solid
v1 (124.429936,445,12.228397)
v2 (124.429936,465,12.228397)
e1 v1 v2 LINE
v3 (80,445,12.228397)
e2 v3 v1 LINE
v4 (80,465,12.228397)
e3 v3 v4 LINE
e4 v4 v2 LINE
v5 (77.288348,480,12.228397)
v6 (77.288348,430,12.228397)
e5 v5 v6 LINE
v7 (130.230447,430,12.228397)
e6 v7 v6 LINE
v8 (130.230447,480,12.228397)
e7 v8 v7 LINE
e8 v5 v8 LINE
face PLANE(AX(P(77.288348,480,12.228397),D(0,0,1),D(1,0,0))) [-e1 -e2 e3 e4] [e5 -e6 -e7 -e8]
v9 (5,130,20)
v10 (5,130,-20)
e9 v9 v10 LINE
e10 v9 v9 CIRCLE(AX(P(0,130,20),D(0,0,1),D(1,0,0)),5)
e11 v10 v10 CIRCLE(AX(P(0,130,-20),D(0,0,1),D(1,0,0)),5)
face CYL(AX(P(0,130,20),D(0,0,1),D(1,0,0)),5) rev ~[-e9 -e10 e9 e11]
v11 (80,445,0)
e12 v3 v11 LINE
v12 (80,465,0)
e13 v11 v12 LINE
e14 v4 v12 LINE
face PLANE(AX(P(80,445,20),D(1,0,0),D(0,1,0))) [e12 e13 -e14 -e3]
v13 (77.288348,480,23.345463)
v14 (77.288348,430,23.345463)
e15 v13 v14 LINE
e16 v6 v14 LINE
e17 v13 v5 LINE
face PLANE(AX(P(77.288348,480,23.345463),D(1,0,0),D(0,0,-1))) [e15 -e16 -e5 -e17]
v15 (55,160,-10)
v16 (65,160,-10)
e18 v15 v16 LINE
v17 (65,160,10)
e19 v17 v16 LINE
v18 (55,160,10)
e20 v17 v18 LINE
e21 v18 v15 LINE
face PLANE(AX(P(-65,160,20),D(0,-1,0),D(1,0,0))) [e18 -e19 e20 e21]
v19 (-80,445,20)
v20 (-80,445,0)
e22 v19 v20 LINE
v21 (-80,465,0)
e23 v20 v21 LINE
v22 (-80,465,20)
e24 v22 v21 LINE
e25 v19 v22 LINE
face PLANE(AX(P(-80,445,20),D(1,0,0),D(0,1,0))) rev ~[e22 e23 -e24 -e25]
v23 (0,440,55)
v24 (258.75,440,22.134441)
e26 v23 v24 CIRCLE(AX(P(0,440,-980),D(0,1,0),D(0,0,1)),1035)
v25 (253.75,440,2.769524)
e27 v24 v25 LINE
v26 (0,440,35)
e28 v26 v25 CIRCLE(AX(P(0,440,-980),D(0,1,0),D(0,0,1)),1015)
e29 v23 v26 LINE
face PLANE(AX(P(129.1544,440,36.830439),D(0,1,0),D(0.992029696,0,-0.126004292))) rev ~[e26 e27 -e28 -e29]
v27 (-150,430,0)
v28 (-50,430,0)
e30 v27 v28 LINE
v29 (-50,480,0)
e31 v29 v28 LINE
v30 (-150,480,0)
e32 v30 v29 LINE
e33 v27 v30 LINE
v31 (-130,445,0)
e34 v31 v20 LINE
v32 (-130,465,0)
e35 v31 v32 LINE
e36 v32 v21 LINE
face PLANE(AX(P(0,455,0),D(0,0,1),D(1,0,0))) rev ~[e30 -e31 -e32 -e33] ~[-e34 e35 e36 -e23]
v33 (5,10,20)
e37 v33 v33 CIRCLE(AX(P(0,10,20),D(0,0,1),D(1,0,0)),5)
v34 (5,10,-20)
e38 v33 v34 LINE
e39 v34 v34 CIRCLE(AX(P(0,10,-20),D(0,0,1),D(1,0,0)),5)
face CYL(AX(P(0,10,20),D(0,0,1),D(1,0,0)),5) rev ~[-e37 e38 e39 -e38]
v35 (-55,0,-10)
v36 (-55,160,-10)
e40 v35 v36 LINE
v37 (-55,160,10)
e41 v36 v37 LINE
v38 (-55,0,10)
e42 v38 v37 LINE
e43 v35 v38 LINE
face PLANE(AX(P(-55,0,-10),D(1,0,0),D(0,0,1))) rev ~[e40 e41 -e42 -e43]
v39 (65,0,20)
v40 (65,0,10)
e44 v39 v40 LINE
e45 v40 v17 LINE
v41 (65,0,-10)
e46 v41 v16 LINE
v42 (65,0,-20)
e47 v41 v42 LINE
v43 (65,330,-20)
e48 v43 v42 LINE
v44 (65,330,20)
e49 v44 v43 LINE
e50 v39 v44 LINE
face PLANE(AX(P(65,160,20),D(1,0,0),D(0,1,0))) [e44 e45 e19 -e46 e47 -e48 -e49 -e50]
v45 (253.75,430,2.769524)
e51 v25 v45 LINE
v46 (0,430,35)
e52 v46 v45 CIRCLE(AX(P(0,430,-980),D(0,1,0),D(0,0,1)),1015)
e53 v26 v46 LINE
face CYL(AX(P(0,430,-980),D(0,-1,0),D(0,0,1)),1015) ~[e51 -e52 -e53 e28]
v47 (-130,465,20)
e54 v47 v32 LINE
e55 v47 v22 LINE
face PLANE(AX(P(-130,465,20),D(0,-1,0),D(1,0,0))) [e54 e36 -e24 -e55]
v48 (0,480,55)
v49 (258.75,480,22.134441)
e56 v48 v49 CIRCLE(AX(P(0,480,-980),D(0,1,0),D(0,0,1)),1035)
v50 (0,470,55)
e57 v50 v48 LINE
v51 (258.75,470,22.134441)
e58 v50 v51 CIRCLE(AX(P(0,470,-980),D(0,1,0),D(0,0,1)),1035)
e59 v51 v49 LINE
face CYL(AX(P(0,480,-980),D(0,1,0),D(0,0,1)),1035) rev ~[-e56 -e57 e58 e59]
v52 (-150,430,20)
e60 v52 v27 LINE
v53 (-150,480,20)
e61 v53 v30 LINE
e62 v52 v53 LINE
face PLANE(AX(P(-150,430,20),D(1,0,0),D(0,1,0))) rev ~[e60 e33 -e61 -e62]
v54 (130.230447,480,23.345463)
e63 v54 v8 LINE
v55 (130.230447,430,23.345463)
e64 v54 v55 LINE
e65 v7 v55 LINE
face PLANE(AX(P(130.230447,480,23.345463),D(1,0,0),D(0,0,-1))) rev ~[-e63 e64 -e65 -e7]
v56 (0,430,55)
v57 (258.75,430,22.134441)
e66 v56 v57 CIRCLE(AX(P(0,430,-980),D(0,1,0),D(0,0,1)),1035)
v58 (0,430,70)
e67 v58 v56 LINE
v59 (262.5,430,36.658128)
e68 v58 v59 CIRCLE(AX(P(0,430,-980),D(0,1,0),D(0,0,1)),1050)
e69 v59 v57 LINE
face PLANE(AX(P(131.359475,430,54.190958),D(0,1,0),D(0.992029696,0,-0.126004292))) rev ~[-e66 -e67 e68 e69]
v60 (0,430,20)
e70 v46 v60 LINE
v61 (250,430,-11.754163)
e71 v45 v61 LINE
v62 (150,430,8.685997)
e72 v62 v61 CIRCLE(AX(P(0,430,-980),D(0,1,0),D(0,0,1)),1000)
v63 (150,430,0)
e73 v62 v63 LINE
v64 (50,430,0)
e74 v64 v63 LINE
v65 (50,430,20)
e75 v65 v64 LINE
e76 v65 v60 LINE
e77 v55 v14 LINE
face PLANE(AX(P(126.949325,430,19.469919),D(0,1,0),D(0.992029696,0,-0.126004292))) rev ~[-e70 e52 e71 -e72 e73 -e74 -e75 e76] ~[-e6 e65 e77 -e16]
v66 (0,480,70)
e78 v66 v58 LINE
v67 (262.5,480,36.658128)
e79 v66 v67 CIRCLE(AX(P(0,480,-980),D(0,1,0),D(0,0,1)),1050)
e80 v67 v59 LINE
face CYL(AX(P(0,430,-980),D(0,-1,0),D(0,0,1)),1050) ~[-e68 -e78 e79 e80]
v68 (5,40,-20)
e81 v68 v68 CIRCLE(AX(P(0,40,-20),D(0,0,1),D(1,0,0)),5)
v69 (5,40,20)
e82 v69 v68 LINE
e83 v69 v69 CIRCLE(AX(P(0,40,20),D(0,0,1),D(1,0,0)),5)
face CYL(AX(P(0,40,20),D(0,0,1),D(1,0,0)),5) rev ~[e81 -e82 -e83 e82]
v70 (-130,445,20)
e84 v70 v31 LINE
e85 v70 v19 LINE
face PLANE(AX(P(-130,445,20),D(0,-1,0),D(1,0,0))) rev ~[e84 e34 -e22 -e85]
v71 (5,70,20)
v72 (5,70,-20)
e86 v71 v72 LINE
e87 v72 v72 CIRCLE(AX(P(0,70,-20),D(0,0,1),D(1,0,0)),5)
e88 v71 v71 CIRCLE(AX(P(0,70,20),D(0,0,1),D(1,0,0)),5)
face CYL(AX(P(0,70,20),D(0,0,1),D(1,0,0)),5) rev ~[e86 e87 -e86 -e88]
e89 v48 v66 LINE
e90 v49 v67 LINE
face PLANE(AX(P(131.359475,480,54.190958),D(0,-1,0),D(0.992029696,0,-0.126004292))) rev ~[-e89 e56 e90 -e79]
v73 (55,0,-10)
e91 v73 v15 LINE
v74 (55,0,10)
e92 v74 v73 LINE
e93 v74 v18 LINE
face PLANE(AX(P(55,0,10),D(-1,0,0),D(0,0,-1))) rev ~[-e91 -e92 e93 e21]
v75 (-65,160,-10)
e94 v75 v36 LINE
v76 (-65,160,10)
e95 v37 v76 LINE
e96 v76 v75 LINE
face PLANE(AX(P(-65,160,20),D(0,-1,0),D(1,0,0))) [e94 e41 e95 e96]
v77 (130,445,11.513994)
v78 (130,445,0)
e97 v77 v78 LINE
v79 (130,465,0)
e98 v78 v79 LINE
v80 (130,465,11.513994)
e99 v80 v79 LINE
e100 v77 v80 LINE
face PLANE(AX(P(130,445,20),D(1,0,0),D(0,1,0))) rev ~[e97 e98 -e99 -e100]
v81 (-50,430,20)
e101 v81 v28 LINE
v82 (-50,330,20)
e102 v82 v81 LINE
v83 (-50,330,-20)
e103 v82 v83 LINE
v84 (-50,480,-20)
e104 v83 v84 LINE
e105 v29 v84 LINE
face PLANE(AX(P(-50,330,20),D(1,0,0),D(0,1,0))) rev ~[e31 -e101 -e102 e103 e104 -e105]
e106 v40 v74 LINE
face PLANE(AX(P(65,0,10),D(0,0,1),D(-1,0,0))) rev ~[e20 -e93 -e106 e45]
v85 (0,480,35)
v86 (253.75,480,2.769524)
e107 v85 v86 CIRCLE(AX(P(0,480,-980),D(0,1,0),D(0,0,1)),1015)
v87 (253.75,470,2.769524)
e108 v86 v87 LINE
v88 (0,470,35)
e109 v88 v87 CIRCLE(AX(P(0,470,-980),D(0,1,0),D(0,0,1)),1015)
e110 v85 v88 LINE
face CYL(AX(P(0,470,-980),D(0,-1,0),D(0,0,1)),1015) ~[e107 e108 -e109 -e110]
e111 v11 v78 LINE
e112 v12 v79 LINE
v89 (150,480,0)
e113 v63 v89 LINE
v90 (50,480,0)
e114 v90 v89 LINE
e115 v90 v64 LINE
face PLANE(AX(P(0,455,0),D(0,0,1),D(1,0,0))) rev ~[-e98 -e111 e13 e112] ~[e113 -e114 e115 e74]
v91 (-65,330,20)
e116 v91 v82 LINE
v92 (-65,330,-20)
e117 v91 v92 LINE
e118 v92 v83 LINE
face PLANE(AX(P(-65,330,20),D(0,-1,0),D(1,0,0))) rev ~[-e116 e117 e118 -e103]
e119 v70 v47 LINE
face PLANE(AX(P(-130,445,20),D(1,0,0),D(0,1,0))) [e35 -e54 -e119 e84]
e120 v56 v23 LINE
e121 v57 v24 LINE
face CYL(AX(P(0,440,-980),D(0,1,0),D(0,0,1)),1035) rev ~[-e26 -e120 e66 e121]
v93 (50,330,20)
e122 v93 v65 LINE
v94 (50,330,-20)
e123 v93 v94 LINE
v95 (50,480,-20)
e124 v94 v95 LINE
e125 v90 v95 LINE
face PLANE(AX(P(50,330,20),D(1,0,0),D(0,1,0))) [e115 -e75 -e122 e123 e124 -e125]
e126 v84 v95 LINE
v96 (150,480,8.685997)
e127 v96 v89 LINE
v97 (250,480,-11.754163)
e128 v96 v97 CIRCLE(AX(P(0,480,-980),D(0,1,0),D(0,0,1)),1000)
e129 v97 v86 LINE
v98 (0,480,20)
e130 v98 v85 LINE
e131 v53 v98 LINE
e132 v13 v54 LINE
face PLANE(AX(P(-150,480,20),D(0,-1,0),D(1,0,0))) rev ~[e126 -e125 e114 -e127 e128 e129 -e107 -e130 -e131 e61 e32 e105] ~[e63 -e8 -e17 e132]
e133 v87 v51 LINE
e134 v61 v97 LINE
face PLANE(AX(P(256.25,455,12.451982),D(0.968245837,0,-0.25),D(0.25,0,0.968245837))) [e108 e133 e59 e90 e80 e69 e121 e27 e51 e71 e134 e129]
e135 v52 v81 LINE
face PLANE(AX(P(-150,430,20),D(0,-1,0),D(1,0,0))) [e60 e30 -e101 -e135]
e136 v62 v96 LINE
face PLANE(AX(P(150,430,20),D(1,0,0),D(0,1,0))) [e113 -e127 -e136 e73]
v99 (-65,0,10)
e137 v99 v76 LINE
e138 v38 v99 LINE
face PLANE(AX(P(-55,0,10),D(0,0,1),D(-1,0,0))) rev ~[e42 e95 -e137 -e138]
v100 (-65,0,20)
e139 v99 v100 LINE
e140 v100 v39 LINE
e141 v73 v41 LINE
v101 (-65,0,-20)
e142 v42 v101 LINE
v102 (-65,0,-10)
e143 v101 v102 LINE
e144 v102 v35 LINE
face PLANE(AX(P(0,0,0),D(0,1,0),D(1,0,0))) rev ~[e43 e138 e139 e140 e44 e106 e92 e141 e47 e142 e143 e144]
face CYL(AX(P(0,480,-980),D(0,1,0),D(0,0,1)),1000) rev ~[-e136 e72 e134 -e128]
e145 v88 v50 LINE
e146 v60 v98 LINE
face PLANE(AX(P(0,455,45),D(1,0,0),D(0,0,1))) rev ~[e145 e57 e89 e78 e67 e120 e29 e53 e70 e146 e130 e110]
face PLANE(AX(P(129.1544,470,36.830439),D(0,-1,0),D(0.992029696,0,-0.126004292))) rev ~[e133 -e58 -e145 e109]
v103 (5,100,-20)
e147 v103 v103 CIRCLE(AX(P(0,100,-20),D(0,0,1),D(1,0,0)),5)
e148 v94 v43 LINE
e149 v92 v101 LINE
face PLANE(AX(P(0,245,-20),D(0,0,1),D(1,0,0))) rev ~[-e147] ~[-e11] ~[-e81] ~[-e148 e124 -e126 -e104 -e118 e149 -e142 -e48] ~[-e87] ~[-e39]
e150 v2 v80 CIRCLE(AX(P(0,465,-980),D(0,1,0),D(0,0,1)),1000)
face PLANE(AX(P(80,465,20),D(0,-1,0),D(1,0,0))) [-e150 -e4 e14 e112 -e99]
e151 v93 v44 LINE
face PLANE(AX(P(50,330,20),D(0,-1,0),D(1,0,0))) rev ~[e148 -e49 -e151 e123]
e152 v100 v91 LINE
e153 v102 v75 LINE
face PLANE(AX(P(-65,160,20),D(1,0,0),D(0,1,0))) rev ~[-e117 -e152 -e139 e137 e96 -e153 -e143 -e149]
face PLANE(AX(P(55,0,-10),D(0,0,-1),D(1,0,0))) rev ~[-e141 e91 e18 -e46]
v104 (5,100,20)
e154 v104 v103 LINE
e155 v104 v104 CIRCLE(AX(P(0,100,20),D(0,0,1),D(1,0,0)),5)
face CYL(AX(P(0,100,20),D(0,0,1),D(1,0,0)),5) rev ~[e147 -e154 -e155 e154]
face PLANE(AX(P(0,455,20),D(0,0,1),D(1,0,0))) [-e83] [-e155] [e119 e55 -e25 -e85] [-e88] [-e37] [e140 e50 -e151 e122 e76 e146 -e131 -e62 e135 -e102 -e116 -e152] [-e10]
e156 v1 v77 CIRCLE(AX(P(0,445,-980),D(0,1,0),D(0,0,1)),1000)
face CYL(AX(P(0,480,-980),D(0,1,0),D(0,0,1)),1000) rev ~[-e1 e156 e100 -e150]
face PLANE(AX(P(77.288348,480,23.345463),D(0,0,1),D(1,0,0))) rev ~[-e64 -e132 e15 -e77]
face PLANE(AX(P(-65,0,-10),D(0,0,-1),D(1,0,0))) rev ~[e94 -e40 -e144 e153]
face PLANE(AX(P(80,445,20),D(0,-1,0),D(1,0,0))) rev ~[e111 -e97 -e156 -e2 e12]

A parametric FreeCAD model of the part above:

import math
import FreeCAD as App
import Part
import Sketcher


def add_polygon(sketch, points):
    """Adds a closed chain of lines whose ends are joined by coincident constraints."""
    first, n = sketch.GeometryCount, len(points)
    for a, b in zip(points, points[1:] + points[:1]):
        sketch.addGeometry(Part.LineSegment(App.Vector(*a, 0), App.Vector(*b, 0)), False)
    for i in range(n):
        sketch.addConstraint(Sketcher.Constraint("Coincident", first + i, 2, first + (i + 1) % n, 1))

doc = App.newDocument("Part")
body = doc.addObject("PartDesign::Body", "Body")

sketch1 = body.newObject("Sketcher::SketchObject", "Sketch")
sketch1.AttachmentSupport = (doc.getObject("XZ_Plane"), [""])
sketch1.MapMode = "FlatFace"
add_polygon(sketch1, [(65, -20), (-65, -20), (-65, -10), (-55, -10), (-55, 10), (-65, 10), (-65, 20), (65, 20), (65, 10), (55, 10), (55, -10), (65, -10)])
sketch1.addConstraint([
    Sketcher.Constraint("Horizontal", 0),
    Sketcher.Constraint("Vertical", 1),
    Sketcher.Constraint("Horizontal", 2),
    Sketcher.Constraint("Vertical", 3),
    Sketcher.Constraint("Horizontal", 4),
    Sketcher.Constraint("Vertical", 5),
    Sketcher.Constraint("Horizontal", 6),
    Sketcher.Constraint("Vertical", 7),
    Sketcher.Constraint("Horizontal", 8),
    Sketcher.Constraint("Vertical", 9),
    Sketcher.Constraint("Horizontal", 10),
    Sketcher.Constraint("Vertical", 11),
    Sketcher.Constraint("Symmetric", 0, 2, 6, 2, -1, 1),
    Sketcher.Constraint("Symmetric", 2, 2, 8, 2, -1, 1),
    Sketcher.Constraint("Symmetric", 4, 2, 10, 2, -1, 1),
    Sketcher.Constraint("Symmetric", 4, 2, 7, 2, -2),
    Sketcher.Constraint("Equal", 10, 1),
    Sketcher.Constraint("DistanceX", 0, 2, 0, 1, 130.0),
    Sketcher.Constraint("DistanceX", 2, 1, 2, 2, 10.0),
    Sketcher.Constraint("DistanceY", 3, 1, 3, 2, 20.0),
])
pad1 = body.newObject("PartDesign::Pad", "Pad")
pad1.Profile = sketch1
pad1.Length = 160
pad1.Reversed = True

sketch2 = body.newObject("Sketcher::SketchObject", "Sketch001")
sketch2.AttachmentSupport = (doc.getObject("XY_Plane"), [""])
sketch2.MapMode = "FlatFace"
sketch2.AttachmentOffset = App.Placement(App.Vector(0, 0, 20), App.Rotation())
sketch2.addGeometry(Part.Circle(App.Vector(0, 10, 0), App.Vector(0, 0, 1), 5), False)
sketch2.addConstraint([
    Sketcher.Constraint("PointOnObject", 0, 3, -2),
    Sketcher.Constraint("Diameter", 0, 10.0),
    Sketcher.Constraint("DistanceY", -1, 1, 0, 3, 10.0),
])
pocket1 = body.newObject("PartDesign::Pocket", "Pocket")
pocket1.Profile = sketch2
pocket1.Type = "ThroughAll"
doc.recompute()

linearpattern = body.newObject("PartDesign::LinearPattern", "LinearPattern")
linearpattern.Originals = [pocket1]
linearpattern.Direction = (doc.getObject("Y_Axis"), [""])
linearpattern.Mode = "offset"
linearpattern.Offset = 30
linearpattern.Occurrences = 5
body.Tip = linearpattern

sketch3 = body.newObject("Sketcher::SketchObject", "Sketch002")
sketch3.AttachmentSupport = (doc.getObject("XY_Plane"), [""])
sketch3.MapMode = "FlatFace"
sketch3.AttachmentOffset = App.Placement(App.Vector(0, 0, 20), App.Rotation())
add_polygon(sketch3, [(-65, 330), (-65, 160), (65, 160), (65, 330), (50, 330), (50, 480), (-50, 480), (-50, 330)])
sketch3.addConstraint([
    Sketcher.Constraint("Vertical", 0),
    Sketcher.Constraint("Horizontal", 1),
    Sketcher.Constraint("Vertical", 2),
    Sketcher.Constraint("Horizontal", 3),
    Sketcher.Constraint("Vertical", 4),
    Sketcher.Constraint("Horizontal", 5),
    Sketcher.Constraint("Vertical", 6),
    Sketcher.Constraint("Horizontal", 7),
    Sketcher.Constraint("Symmetric", 3, 2, 6, 2, -2),
    Sketcher.Constraint("Equal", 3, 7),
    Sketcher.Constraint("DistanceX", 1, 1, 1, 2, 130.0),
    Sketcher.Constraint("DistanceX", 3, 2, 3, 1, 15.0),
    Sketcher.Constraint("DistanceY", 0, 2, 0, 1, 170.0),
    Sketcher.Constraint("DistanceY", 4, 1, 4, 2, 150.0),
    Sketcher.Constraint("DistanceY", -1, 1, 0, 2, 160.0),
])
pad2 = body.newObject("PartDesign::Pad", "Pad001")
pad2.Profile = sketch3
pad2.Length = 40
pad2.Reversed = True

sketch4 = body.newObject("Sketcher::SketchObject", "Sketch003")
sketch4.AttachmentSupport = (doc.getObject("YZ_Plane"), [""])
sketch4.MapMode = "FlatFace"
add_polygon(sketch4, [(480, 55), (480, 70), (430, 70), (430, 55), (440, 55), (440, 35), (430, 35), (430, 20), (480, 20), (480, 35), (470, 35), (470, 55)])
sketch4.addConstraint([
    Sketcher.Constraint("Vertical", 0),
    Sketcher.Constraint("Horizontal", 1),
    Sketcher.Constraint("Vertical", 2),
    Sketcher.Constraint("Horizontal", 3),
    Sketcher.Constraint("Vertical", 4),
    Sketcher.Constraint("Horizontal", 5),
    Sketcher.Constraint("Vertical", 6),
    Sketcher.Constraint("Horizontal", 7),
    Sketcher.Constraint("Vertical", 8),
    Sketcher.Constraint("Horizontal", 9),
    Sketcher.Constraint("Vertical", 10),
    Sketcher.Constraint("Horizontal", 11),
    Sketcher.Constraint("Horizontal", 5, 2, 8, 2),
    Sketcher.Constraint("Horizontal", 3, 2, 10, 2),
    Sketcher.Constraint("Vertical", 2, 2, 5, 2),
    Sketcher.Constraint("Vertical", 0, 2, 7, 2),
    Sketcher.Constraint("Equal", 5, 9),
    Sketcher.Constraint("Equal", 2, 6),
    Sketcher.Constraint("DistanceX", 1, 2, 1, 1, 50.0),
    Sketcher.Constraint("DistanceX", 3, 1, 3, 2, 10.0),
    Sketcher.Constraint("DistanceY", 0, 1, 0, 2, 15.0),
    Sketcher.Constraint("DistanceY", 4, 2, 4, 1, 20.0),
    Sketcher.Constraint("DistanceX", -1, 1, 0, 2, 480.0),
    Sketcher.Constraint("DistanceY", -1, 1, 0, 2, 70.0),
])

sketch5 = body.newObject("Sketcher::SketchObject", "Sketch004")
sketch5.AttachmentSupport = (doc.getObject("XZ_Plane"), [""])
sketch5.MapMode = "FlatFace"
sketch5.AttachmentOffset = App.Placement(App.Vector(0, 0, -480), App.Rotation())
sketch5.addGeometry(Part.ArcOfCircle(Part.Circle(App.Vector(0, -980, 0), App.Vector(0, 0, 1), 1000), math.radians(75.52), math.radians(90)), False)
sketch5.addConstraint([
    Sketcher.Constraint("PointOnObject", 0, 3, -2),
    Sketcher.Constraint("PointOnObject", 0, 2, -2),
    Sketcher.Constraint("Radius", 0, 1000.0),
    Sketcher.Constraint("DistanceY", 0, 3, -1, 1, 980.0),
    Sketcher.Constraint("DistanceX", -1, 1, 0, 1, 250.0),
])
doc.recompute()

additivepipe = body.newObject("PartDesign::AdditivePipe", "AdditivePipe")
additivepipe.Profile = sketch4
additivepipe.Spine = (sketch5, ["Edge1"])

sketch6 = body.newObject("Sketcher::SketchObject", "Sketch005")
sketch6.AttachmentSupport = (doc.getObject("XY_Plane"), [""])
sketch6.MapMode = "FlatFace"
sketch6.AttachmentOffset = App.Placement(App.Vector(0, 0, 20), App.Rotation())
add_polygon(sketch6, [(-150, 480), (-150, 430), (150, 430), (150, 480)])
add_polygon(sketch6, [(-80, 445), (-130, 445), (-130, 465), (-80, 465)])
add_polygon(sketch6, [(130, 445), (80, 445), (80, 465), (130, 465)])
sketch6.addConstraint([
    Sketcher.Constraint("Vertical", 0),
    Sketcher.Constraint("Horizontal", 1),
    Sketcher.Constraint("Vertical", 2),
    Sketcher.Constraint("Horizontal", 3),
    Sketcher.Constraint("Horizontal", 4),
    Sketcher.Constraint("Vertical", 5),
    Sketcher.Constraint("Horizontal", 6),
    Sketcher.Constraint("Vertical", 7),
    Sketcher.Constraint("Horizontal", 8),
    Sketcher.Constraint("Vertical", 9),
    Sketcher.Constraint("Horizontal", 10),
    Sketcher.Constraint("Vertical", 11),
    Sketcher.Constraint("Symmetric", 7, 2, 8, 2, -2),
    Sketcher.Constraint("Symmetric", 5, 2, 10, 2, -2),
    Sketcher.Constraint("Equal", 10, 0),
    Sketcher.Constraint("DistanceX", 1, 1, 1, 2, 300.0),
    Sketcher.Constraint("DistanceX", 4, 2, 4, 1, 50.0),
    Sketcher.Constraint("DistanceY", 5, 1, 5, 2, 20.0),
    Sketcher.Constraint("DistanceX", 0, 2, -1, 1, 150.0),
    Sketcher.Constraint("DistanceY", -1, 1, 0, 2, 430.0),
    Sketcher.Constraint("DistanceX", 4, 2, -1, 1, 130.0),
    Sketcher.Constraint("DistanceY", -1, 1, 4, 2, 445.0),
])
pad3 = body.newObject("PartDesign::Pad", "Pad002")
pad3.Profile = sketch6
pad3.Length = 20
pad3.Reversed = True

sketch7 = body.newObject("Sketcher::SketchObject", "Sketch006")
sketch7.AttachmentSupport = (doc.getObject("XZ_Plane"), [""])
sketch7.MapMode = "FlatFace"
sketch7.AttachmentOffset = App.Placement(App.Vector(0, 0, -480), App.Rotation())
add_polygon(sketch7, [(77, 12), (77, 23), (130, 23), (130, 12)])
sketch7.addConstraint([
    Sketcher.Constraint("Vertical", 0),
    Sketcher.Constraint("Horizontal", 1),
    Sketcher.Constraint("Vertical", 2),
    Sketcher.Constraint("Horizontal", 3),
    Sketcher.Constraint("DistanceX", 1, 1, 1, 2, 52.942099),
    Sketcher.Constraint("DistanceY", 0, 1, 0, 2, 11.117066),
    Sketcher.Constraint("DistanceX", -1, 1, 0, 2, 77.288348),
    Sketcher.Constraint("DistanceY", -1, 1, 0, 2, 23.345463),
])
pocket2 = body.newObject("PartDesign::Pocket", "Pocket001")
pocket2.Profile = sketch7
pocket2.Type = "UpToFirst"
pocket2.Reversed = True

doc.recompute()
